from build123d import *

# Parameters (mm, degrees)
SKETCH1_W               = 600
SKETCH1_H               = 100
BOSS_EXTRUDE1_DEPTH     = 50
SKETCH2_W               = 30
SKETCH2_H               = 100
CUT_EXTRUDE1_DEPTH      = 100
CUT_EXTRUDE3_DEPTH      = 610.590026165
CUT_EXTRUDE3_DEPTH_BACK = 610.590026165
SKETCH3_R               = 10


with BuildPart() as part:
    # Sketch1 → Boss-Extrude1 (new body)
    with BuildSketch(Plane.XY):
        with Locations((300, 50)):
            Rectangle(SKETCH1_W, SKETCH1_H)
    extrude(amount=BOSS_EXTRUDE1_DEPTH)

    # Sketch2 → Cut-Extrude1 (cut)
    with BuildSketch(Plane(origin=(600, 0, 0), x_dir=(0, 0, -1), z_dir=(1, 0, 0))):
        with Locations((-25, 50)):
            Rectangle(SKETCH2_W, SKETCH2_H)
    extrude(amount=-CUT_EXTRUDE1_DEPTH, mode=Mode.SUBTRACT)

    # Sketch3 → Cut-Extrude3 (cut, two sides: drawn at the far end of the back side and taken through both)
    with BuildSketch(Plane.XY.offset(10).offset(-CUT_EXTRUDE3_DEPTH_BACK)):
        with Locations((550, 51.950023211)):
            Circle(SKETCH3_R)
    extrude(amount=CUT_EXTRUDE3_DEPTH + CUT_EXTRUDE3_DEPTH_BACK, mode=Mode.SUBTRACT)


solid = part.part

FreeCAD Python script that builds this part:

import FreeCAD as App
import Part
import Sketcher
from FreeCAD import Vector
Q = App.Units.Quantity

doc = App.newDocument("Part")
body = doc.addObject("PartDesign::Body", "Body")

sketch1 = body.newObject("Sketcher::SketchObject", "Sketch")
sketch1.AttachmentSupport = (doc.getObject("XY_Plane"), [""])
sketch1.MapMode = "FlatFace"
sketch1.addGeometry([
    Part.LineSegment(Vector(0, 100, 0), Vector(0, 0, 0)),
    Part.LineSegment(Vector(0, 0, 0), Vector(600, 0, 0)),
    Part.LineSegment(Vector(600, 0, 0), Vector(600, 100, 0)),
    Part.LineSegment(Vector(600, 100, 0), Vector(0, 100, 0)),
], False)
sketch1.addConstraint([
    Sketcher.Constraint("Coincident", 0, 2, 1, 1),
    Sketcher.Constraint("Coincident", 1, 2, 2, 1),
    Sketcher.Constraint("Coincident", 2, 2, 3, 1),
    Sketcher.Constraint("Coincident", 3, 2, 0, 1),
    Sketcher.Constraint("Vertical", 0),
    Sketcher.Constraint("Horizontal", 1),
    Sketcher.Constraint("Vertical", 2),
    Sketcher.Constraint("Horizontal", 3),
    Sketcher.Constraint("Coincident", 0, 2, -1, 1),
    Sketcher.Constraint("DistanceX", 1, 1, 1, 2, Q("600 mm")),
    Sketcher.Constraint("DistanceY", 0, 2, 0, 1, Q("100 mm")),
])
pad1 = body.newObject("PartDesign::Pad", "Pad")
pad1.Profile = sketch1
pad1.Length = 50

sketch2 = body.newObject("Sketcher::SketchObject", "Sketch001")
sketch2.AttachmentSupport = (doc.getObject("YZ_Plane"), [""])
sketch2.MapMode = "FlatFace"
sketch2.AttachmentOffset = App.Placement(Vector(0, 0, 600), App.Rotation())
sketch2.addGeometry([
    Part.LineSegment(Vector(100, 40, 0), Vector(0, 40, 0)),
    Part.LineSegment(Vector(0, 40, 0), Vector(0, 10, 0)),
    Part.LineSegment(Vector(0, 10, 0), Vector(100, 10, 0)),
    Part.LineSegment(Vector(100, 10, 0), Vector(100, 40, 0)),
], False)
sketch2.addConstraint([
    Sketcher.Constraint("Coincident", 0, 2, 1, 1),
    Sketcher.Constraint("Coincident", 1, 2, 2, 1),
    Sketcher.Constraint("Coincident", 2, 2, 3, 1),
    Sketcher.Constraint("Coincident", 3, 2, 0, 1),
    Sketcher.Constraint("Horizontal", 0),
    Sketcher.Constraint("Vertical", 1),
    Sketcher.Constraint("Horizontal", 2),
    Sketcher.Constraint("Vertical", 3),
    Sketcher.Constraint("PointOnObject", 0, 2, -2),
    Sketcher.Constraint("DistanceX", 0, 2, 0, 1, Q("100 mm")),
    Sketcher.Constraint("DistanceY", 1, 2, 1, 1, Q("30 mm")),
    Sketcher.Constraint("DistanceY", -1, 1, 0, 2, Q("40 mm")),
])
pocket1 = body.newObject("PartDesign::Pocket", "Pocket")
pocket1.Profile = sketch2
pocket1.Length = 100

sketch3 = body.newObject("Sketcher::SketchObject", "Sketch002")
sketch3.AttachmentSupport = (doc.getObject("XY_Plane"), [""])
sketch3.MapMode = "FlatFace"
sketch3.AttachmentOffset = App.Placement(Vector(0, 0, 10), App.Rotation())
sketch3.addGeometry(Part.Circle(Vector(550, 52, 0), Vector(0, 0, 1), 10), False)
sketch3.addConstraint([
    Sketcher.Constraint("Diameter", 0, Q("20 mm")),
    Sketcher.Constraint("DistanceX", -1, 1, 0, 3, Q("550 mm")),
    Sketcher.Constraint("DistanceY", -1, 1, 0, 3, Q("51.950023 mm")),
])
pocket2 = body.newObject("PartDesign::Pocket", "Pocket001")
pocket2.Profile = sketch3
pocket2.Type = "ThroughAll"
pocket2.Midplane = True

doc.recompute()
